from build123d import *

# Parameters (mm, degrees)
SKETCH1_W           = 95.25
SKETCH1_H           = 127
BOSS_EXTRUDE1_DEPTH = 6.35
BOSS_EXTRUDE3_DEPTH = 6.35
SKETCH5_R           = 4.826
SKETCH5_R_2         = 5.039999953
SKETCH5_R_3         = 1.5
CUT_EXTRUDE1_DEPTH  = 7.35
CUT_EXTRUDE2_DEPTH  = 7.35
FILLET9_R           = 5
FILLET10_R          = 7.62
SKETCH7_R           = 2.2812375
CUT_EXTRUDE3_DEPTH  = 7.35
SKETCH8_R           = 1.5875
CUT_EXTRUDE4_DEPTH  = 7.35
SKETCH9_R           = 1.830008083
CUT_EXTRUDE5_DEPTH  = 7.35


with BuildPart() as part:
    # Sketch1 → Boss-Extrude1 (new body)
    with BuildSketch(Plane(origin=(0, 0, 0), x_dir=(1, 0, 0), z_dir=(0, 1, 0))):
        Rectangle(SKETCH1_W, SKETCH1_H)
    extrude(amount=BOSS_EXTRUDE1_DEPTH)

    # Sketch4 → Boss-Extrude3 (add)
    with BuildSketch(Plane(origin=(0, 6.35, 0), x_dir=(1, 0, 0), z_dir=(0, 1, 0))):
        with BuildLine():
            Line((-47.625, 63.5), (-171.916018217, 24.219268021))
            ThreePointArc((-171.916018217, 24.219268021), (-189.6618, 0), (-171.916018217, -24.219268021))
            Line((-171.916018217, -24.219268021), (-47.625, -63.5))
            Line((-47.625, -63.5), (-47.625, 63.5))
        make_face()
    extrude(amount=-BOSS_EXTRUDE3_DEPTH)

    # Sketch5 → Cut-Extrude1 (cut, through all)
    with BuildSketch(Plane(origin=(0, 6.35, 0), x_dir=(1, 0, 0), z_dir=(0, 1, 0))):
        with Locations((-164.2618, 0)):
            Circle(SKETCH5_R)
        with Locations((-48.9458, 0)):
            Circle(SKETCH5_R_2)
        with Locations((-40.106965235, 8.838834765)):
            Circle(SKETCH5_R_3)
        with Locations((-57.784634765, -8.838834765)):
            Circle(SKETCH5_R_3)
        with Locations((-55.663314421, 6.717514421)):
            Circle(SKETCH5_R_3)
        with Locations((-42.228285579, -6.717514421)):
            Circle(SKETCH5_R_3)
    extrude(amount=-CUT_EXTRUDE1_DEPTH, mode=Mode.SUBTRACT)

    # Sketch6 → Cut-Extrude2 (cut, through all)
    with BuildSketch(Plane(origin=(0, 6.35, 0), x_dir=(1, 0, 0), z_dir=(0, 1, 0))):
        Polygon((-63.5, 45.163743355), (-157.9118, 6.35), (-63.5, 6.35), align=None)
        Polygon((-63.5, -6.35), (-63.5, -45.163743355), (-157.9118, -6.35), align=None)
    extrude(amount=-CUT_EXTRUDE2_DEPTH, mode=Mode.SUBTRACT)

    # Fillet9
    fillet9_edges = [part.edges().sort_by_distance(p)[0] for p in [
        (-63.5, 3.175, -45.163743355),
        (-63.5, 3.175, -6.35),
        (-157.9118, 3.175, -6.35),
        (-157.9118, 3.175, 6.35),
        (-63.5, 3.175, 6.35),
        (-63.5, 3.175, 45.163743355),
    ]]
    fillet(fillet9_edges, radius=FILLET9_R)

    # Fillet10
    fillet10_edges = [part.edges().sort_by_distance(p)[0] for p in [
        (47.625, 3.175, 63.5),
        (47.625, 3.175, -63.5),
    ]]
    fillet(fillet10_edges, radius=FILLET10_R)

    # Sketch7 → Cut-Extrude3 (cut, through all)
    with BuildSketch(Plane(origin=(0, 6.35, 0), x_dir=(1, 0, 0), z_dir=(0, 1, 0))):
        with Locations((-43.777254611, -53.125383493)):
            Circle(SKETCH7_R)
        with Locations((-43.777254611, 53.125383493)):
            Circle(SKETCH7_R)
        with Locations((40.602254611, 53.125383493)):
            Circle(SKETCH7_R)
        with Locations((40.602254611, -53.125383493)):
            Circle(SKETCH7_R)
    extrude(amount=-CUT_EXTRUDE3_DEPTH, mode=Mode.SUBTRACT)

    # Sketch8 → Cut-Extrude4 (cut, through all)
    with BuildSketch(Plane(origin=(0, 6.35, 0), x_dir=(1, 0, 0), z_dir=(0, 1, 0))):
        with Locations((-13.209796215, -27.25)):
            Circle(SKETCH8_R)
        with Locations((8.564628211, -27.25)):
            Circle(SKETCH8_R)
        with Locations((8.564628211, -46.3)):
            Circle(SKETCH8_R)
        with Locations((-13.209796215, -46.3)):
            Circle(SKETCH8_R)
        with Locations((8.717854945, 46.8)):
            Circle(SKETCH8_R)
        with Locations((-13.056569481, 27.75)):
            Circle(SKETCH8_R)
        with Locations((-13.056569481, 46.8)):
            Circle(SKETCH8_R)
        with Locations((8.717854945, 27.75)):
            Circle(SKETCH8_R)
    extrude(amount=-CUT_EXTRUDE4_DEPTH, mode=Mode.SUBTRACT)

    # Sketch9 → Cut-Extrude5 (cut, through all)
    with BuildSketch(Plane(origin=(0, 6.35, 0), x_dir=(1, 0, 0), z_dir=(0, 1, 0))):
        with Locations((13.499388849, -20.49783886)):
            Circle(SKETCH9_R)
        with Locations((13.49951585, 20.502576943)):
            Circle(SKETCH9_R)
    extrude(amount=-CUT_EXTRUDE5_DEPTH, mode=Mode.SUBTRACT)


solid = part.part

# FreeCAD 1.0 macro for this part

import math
import FreeCAD as App
import Part
import Sketcher

V = App.Vector
Q = App.Units.Quantity


def edges_at(feature, points):
    """Names of the edges that pass closest to the given points."""
    edges = feature.Shape.Edges
    near = lambda p: min(range(len(edges)), key=lambda i: edges[i].distToShape(Part.Vertex(*p))[0])
    return sorted({f"Edge{near(p) + 1}" for p in points})


def add_polygon(sketch, points):
    """Adds a closed chain of lines whose ends are joined by coincident constraints."""
    first, n = sketch.GeometryCount, len(points)
    for a, b in zip(points, points[1:] + points[:1]):
        sketch.addGeometry(Part.LineSegment(App.Vector(*a, 0), App.Vector(*b, 0)), False)
    for i in range(n):
        sketch.addConstraint(Sketcher.Constraint("Coincident", first + i, 2, first + (i + 1) % n, 1))

doc = App.newDocument("Part")
body = doc.addObject("PartDesign::Body", "Body")

# Sketch on XZ plane
sketch1 = body.newObject("Sketcher::SketchObject", "Sketch")
sketch1.AttachmentSupport = (doc.getObject("XZ_Plane"), [""])
sketch1.MapMode = "FlatFace"
add_polygon(sketch1, [(-47.625, -63.5), (-47.625, 63.5), (47.625, 63.5), (47.625, -63.5)])  # lines 0-3
sketch1.addConstraint(Sketcher.Constraint("Vertical", 0))
sketch1.addConstraint(Sketcher.Constraint("Horizontal", 1))
sketch1.addConstraint(Sketcher.Constraint("Vertical", 2))
sketch1.addConstraint(Sketcher.Constraint("Horizontal", 3))
sketch1.addConstraint(Sketcher.Constraint("Symmetric", 0, 2, 2, 2, -1, 1))
sketch1.addConstraint(Sketcher.Constraint("DistanceY", 0, 1, 0, 2, Q("5 in")))
sketch1.addConstraint(Sketcher.Constraint("DistanceX", 1, 1, 1, 2, Q("3.75 in")))
pad1 = body.newObject("PartDesign::Pad", "Pad")
pad1.Profile = sketch1
pad1.Length = Q("0.25 in")
pad1.Reversed = True

# Sketch on XZ plane
sketch2 = body.newObject("Sketcher::SketchObject", "Sketch001")
sketch2.AttachmentSupport = (doc.getObject("XZ_Plane"), [""])
sketch2.MapMode = "FlatFace"
sketch2.AttachmentOffset = App.Placement(V(0, 0, -0.25 * 25.4), App.Rotation())
sketch2.addGeometry(Part.LineSegment(V(-47.625, -63.5, 0), V(-171.916018, -24.219268, 0)), False)
sketch2.addGeometry(Part.ArcOfCircle(Part.Circle(V(-164.2618, 0, 0), V(0, 0, 1), 25.4), math.radians(107.538535), math.radians(252.461465)), False)
sketch2.addGeometry(Part.LineSegment(V(-171.916018, 24.219268, 0), V(-47.625, 63.5, 0)), False)
sketch2.addGeometry(Part.LineSegment(V(-47.625, 63.5, 0), V(-47.625, -63.5, 0)), False)
sketch2.addConstraint(Sketcher.Constraint("Tangent", 0, 2, 1, 2))
sketch2.addConstraint(Sketcher.Constraint("Tangent", 1, 1, 2, 1))
sketch2.addConstraint(Sketcher.Constraint("Coincident", 2, 2, 3, 1))
sketch2.addConstraint(Sketcher.Constraint("Coincident", 3, 2, 0, 1))
sketch2.addConstraint(Sketcher.Constraint("Vertical", 3))
sketch2.addConstraint(Sketcher.Constraint("Symmetric", 0, 2, 1, 1, -1))
sketch2.addConstraint(Sketcher.Constraint("Radius", 1, Q("1 in")))
sketch2.addConstraint(Sketcher.Constraint("DistanceY", 3, 2, 3, 1, Q("5 in")))
sketch2.addConstraint(Sketcher.Constraint("DistanceX", 1, 3, -1, 1, Q("6.467 in")))
sketch2.addConstraint(Sketcher.Constraint("DistanceX", 2, 2, -1, 1, Q("1.875 in")))
pad2 = body.newObject("PartDesign::Pad", "Pad001")
pad2.Profile = sketch2
pad2.Length = Q("0.25 in")

# Sketch on XZ plane
sketch3 = body.newObject("Sketcher::SketchObject", "Sketch002")
sketch3.AttachmentSupport = (doc.getObject("XZ_Plane"), [""])
sketch3.MapMode = "FlatFace"
sketch3.AttachmentOffset = App.Placement(V(0, 0, -0.25 * 25.4), App.Rotation())
sketch3.addGeometry(Part.Circle(V(-164.2618, 0, 0), V(0, 0, 1), 4.826), False)
sketch3.addGeometry(Part.Circle(V(-48.9458, 0, 0), V(0, 0, 1), 5.04), False)
sketch3.addGeometry(Part.Circle(V(-40.106965, -8.838835, 0), V(0, 0, 1), 1.5), False)
sketch3.addGeometry(Part.Circle(V(-57.784635, 8.838835, 0), V(0, 0, 1), 1.5), False)
sketch3.addGeometry(Part.Circle(V(-55.663314, -6.717514, 0), V(0, 0, 1), 1.5), False)
sketch3.addGeometry(Part.Circle(V(-42.228286, 6.717514, 0), V(0, 0, 1), 1.5), False)
sketch3.addConstraint(Sketcher.Constraint("Equal", 2, 3))
sketch3.addConstraint(Sketcher.Constraint("Equal", 3, 4))
sketch3.addConstraint(Sketcher.Constraint("Equal", 4, 5))
sketch3.addConstraint(Sketcher.Constraint("PointOnObject", 0, 3, -1))
sketch3.addConstraint(Sketcher.Constraint("PointOnObject", 1, 3, -1))
sketch3.addConstraint(Sketcher.Constraint("Diameter", 0, Q("0.38 in")))
sketch3.addConstraint(Sketcher.Constraint("Diameter", 1, Q("10.08 mm")))
sketch3.addConstraint(Sketcher.Constraint("Diameter", 2, Q("3 mm")))
sketch3.addConstraint(Sketcher.Constraint("DistanceX", 0, 3, 1, 3, Q("4.54 in")))
sketch3.addConstraint(Sketcher.Constraint("DistanceX", 0, 3, -1, 1, Q("6.467 in")))
sketch3.addConstraint(Sketcher.Constraint("DistanceX", 3, 3, 2, 3, Q("17.67767 mm")))
sketch3.addConstraint(Sketcher.Constraint("DistanceY", 2, 3, 3, 3, Q("17.67767 mm")))
sketch3.addConstraint(Sketcher.Constraint("DistanceX", 3, 3, 4, 3, Q("2.12132 mm")))
sketch3.addConstraint(Sketcher.Constraint("DistanceY", 4, 3, 3, 3, Q("15.556349 mm")))
sketch3.addConstraint(Sketcher.Constraint("DistanceX", 5, 3, 2, 3, Q("2.12132 mm")))
sketch3.addConstraint(Sketcher.Constraint("DistanceY", 2, 3, 5, 3, Q("15.556349 mm")))
sketch3.addConstraint(Sketcher.Constraint("DistanceX", 2, 3, -1, 1, Q("40.106965 mm")))
sketch3.addConstraint(Sketcher.Constraint("DistanceY", 2, 3, -1, 1, Q("8.838835 mm")))
pocket1 = body.newObject("PartDesign::Pocket", "Pocket")
pocket1.Profile = sketch3
pocket1.Type = "ThroughAll"
pocket1.Reversed = True

# Sketch on XZ plane
sketch4 = body.newObject("Sketcher::SketchObject", "Sketch003")
sketch4.AttachmentSupport = (doc.getObject("XZ_Plane"), [""])
sketch4.MapMode = "FlatFace"
sketch4.AttachmentOffset = App.Placement(V(0, 0, -0.25 * 25.4), App.Rotation())
add_polygon(sketch4, [(-63.5, -45.163743), (-157.9118, -6.35), (-63.5, -6.35)])  # lines 0-2
add_polygon(sketch4, [(-63.5, 45.163743), (-63.5, 6.35), (-157.9118, 6.35)])  # lines 3-5
sketch4.addConstraint(Sketcher.Constraint("Horizontal", 1))
sketch4.addConstraint(Sketcher.Constraint("Vertical", 2))
sketch4.addConstraint(Sketcher.Constraint("Vertical", 3))
sketch4.addConstraint(Sketcher.Constraint("Horizontal", 4))
sketch4.addConstraint(Sketcher.Constraint("Symmetric", 1, 2, 3, 2, -1))
sketch4.addConstraint(Sketcher.Constraint("Vertical", 0, 2, 4, 2))
sketch4.addConstraint(Sketcher.Constraint("Equal", 2, 3))
sketch4.addConstraint(Sketcher.Constraint("DistanceX", 1, 2, -1, 1, Q("2.5 in")))
sketch4.addConstraint(Sketcher.Constraint("DistanceY", 1, 2, 3, 2, Q("0.5 in")))
sketch4.addConstraint(Sketcher.Constraint("DistanceX", 1, 1, 1, 2, Q("3.717 in")))
sketch4.addConstraint(Sketcher.Constraint("DistanceY", 2, 2, 2, 1, Q("1.5281001 in")))
pocket2 = body.newObject("PartDesign::Pocket", "Pocket001")
pocket2.Profile = sketch4
pocket2.Type = "ThroughAll"
pocket2.Reversed = True
doc.recompute()

fillet = body.newObject("PartDesign::Fillet", "Fillet")
fillet.Base = (pocket2, edges_at(pocket2, [
    (-63.5, 3.175, -45.164),
    (-63.5, 3.175, -6.35),
    (-157.912, 3.175, -6.35),
    (-157.912, 3.175, 6.35),
    (-63.5, 3.175, 6.35),
    (-63.5, 3.175, 45.164),
]))
fillet.Radius = 5
doc.recompute()

fillet2 = body.newObject("PartDesign::Fillet", "Fillet001")
fillet2.Base = (fillet, edges_at(fillet, [(47.625, 3.175, 63.5), (47.625, 3.175, -63.5)]))
fillet2.Radius = Q("0.3 in")

# Sketch on XZ plane
sketch5 = body.newObject("Sketcher::SketchObject", "Sketch004")
sketch5.AttachmentSupport = (doc.getObject("XZ_Plane"), [""])
sketch5.MapMode = "FlatFace"
sketch5.AttachmentOffset = App.Placement(V(0, 0, -0.25 * 25.4), App.Rotation())
sketch5.addGeometry(Part.Circle(V(-43.777255, 53.125383, 0), V(0, 0, 1), 2.281238), False)
sketch5.addGeometry(Part.Circle(V(-43.777255, -53.125383, 0), V(0, 0, 1), 2.281238), False)
sketch5.addGeometry(Part.Circle(V(40.602255, -53.125383, 0), V(0, 0, 1), 2.281238), False)
sketch5.addGeometry(Part.Circle(V(40.602255, 53.125383, 0), V(0, 0, 1), 2.281238), False)
sketch5.addConstraint(Sketcher.Constraint("Equal", 0, 1))
sketch5.addConstraint(Sketcher.Constraint("Equal", 1, 2))
sketch5.addConstraint(Sketcher.Constraint("Equal", 2, 3))
sketch5.addConstraint(Sketcher.Constraint("Symmetric", 0, 3, 1, 3, -1))
sketch5.addConstraint(Sketcher.Constraint("Symmetric", 2, 3, 3, 3, -1))
sketch5.addConstraint(Sketcher.Constraint("Horizontal", 1, 3, 2, 3))
sketch5.addConstraint(Sketcher.Constraint("Diameter", 0, Q("4.562475 mm")))
sketch5.addConstraint(Sketcher.Constraint("DistanceX", 1, 3, 2, 3, Q("84.379509 mm")))
sketch5.addConstraint(Sketcher.Constraint("DistanceX", 0, 3, -1, 1, Q("43.777255 mm")))
sketch5.addConstraint(Sketcher.Constraint("DistanceY", -1, 1, 0, 3, Q("53.125383 mm")))
pocket3 = body.newObject("PartDesign::Pocket", "Pocket002")
pocket3.Profile = sketch5
pocket3.Type = "ThroughAll"
pocket3.Reversed = True

# Sketch on XZ plane
sketch6 = body.newObject("Sketcher::SketchObject", "Sketch005")
sketch6.AttachmentSupport = (doc.getObject("XZ_Plane"), [""])
sketch6.MapMode = "FlatFace"
sketch6.AttachmentOffset = App.Placement(V(0, 0, -0.25 * 25.4), App.Rotation())
sketch6.addGeometry(Part.Circle(V(-13.209796, 27.25, 0), V(0, 0, 1), 1.5875), False)
sketch6.addGeometry(Part.Circle(V(8.564628, 27.25, 0), V(0, 0, 1), 1.5875), False)
sketch6.addGeometry(Part.Circle(V(8.564628, 46.3, 0), V(0, 0, 1), 1.5875), False)
sketch6.addGeometry(Part.Circle(V(-13.209796, 46.3, 0), V(0, 0, 1), 1.5875), False)
sketch6.addGeometry(Part.Circle(V(8.717855, -46.8, 0), V(0, 0, 1), 1.5875), False)
sketch6.addGeometry(Part.Circle(V(-13.056569, -27.75, 0), V(0, 0, 1), 1.5875), False)
sketch6.addGeometry(Part.Circle(V(-13.056569, -46.8, 0), V(0, 0, 1), 1.5875), False)
sketch6.addGeometry(Part.Circle(V(8.717855, -27.75, 0), V(0, 0, 1), 1.5875), False)
sketch6.addConstraint(Sketcher.Constraint("Equal", 0, 1))
sketch6.addConstraint(Sketcher.Constraint("Equal", 1, 2))
sketch6.addConstraint(Sketcher.Constraint("Equal", 2, 3))
sketch6.addConstraint(Sketcher.Constraint("Equal", 3, 4))
sketch6.addConstraint(Sketcher.Constraint("Equal", 4, 5))
sketch6.addConstraint(Sketcher.Constraint("Equal", 5, 6))
sketch6.addConstraint(Sketcher.Constraint("Equal", 6, 7))
sketch6.addConstraint(Sketcher.Constraint("Horizontal", 0, 3, 1, 3))
sketch6.addConstraint(Sketcher.Constraint("Horizontal", 2, 3, 3, 3))
sketch6.addConstraint(Sketcher.Constraint("Horizontal", 4, 3, 6, 3))
sketch6.addConstraint(Sketcher.Constraint("Horizontal", 5, 3, 7, 3))
sketch6.addConstraint(Sketcher.Constraint("Vertical", 1, 3, 2, 3))
sketch6.addConstraint(Sketcher.Constraint("Vertical", 0, 3, 3, 3))
sketch6.addConstraint(Sketcher.Constraint("Vertical", 5, 3, 6, 3))
sketch6.addConstraint(Sketcher.Constraint("Vertical", 4, 3, 7, 3))
sketch6.addConstraint(Sketcher.Constraint("Diameter", 0, Q("0.125 in")))
sketch6.addConstraint(Sketcher.Constraint("DistanceY", 1, 3, 2, 3, Q("0.75 in")))
sketch6.addConstraint(Sketcher.Constraint("DistanceY", 4, 3, 5, 3, Q("0.75 in")))
sketch6.addConstraint(Sketcher.Constraint("DistanceY", -1, 1, 0, 3, Q("27.25 mm")))
sketch6.addConstraint(Sketcher.Constraint("DistanceY", 4, 3, -1, 1, Q("46.8 mm")))
sketch6.addConstraint(Sketcher.Constraint("DistanceX", -1, 1, 1, 3, Q("8.564628 mm")))
sketch6.addConstraint(Sketcher.Constraint("DistanceX", 5, 3, -1, 1, Q("13.056569 mm")))
sketch6.addConstraint(Sketcher.Constraint("DistanceX", 0, 3, 4, 3, Q("21.927651 mm")))
sketch6.addConstraint(Sketcher.Constraint("DistanceX", 0, 3, -1, 1, Q("13.209796 mm")))
pocket4 = body.newObject("PartDesign::Pocket", "Pocket003")
pocket4.Profile = sketch6
pocket4.Type = "ThroughAll"
pocket4.Reversed = True

# Sketch on XZ plane
sketch7 = body.newObject("Sketcher::SketchObject", "Sketch006")
sketch7.AttachmentSupport = (doc.getObject("XZ_Plane"), [""])
sketch7.MapMode = "FlatFace"
sketch7.AttachmentOffset = App.Placement(V(0, 0, -0.25 * 25.4), App.Rotation())
sketch7.addGeometry(Part.Circle(V(13.499389, 20.497839, 0), V(0, 0, 1), 1.830008), False)
sketch7.addGeometry(Part.Circle(V(13.499516, -20.502577, 0), V(0, 0, 1), 1.830008), False)
sketch7.addConstraint(Sketcher.Constraint("Equal", 0, 1))
sketch7.addConstraint(Sketcher.Constraint("Diameter", 0, Q("3.660016 mm")))
sketch7.addConstraint(Sketcher.Constraint("DistanceX", -1, 1, 0, 3, Q("13.499389 mm")))
sketch7.addConstraint(Sketcher.Constraint("DistanceY", -1, 1, 0, 3, Q("20.497839 mm")))
sketch7.addConstraint(Sketcher.Constraint("DistanceX", -1, 1, 1, 3, Q("13.499516 mm")))
sketch7.addConstraint(Sketcher.Constraint("DistanceY", 1, 3, -1, 1, Q("20.502577 mm")))
pocket5 = body.newObject("PartDesign::Pocket", "Pocket004")
pocket5.Profile = sketch7
pocket5.Type = "ThroughAll"
pocket5.Reversed = True

doc.recompute()
